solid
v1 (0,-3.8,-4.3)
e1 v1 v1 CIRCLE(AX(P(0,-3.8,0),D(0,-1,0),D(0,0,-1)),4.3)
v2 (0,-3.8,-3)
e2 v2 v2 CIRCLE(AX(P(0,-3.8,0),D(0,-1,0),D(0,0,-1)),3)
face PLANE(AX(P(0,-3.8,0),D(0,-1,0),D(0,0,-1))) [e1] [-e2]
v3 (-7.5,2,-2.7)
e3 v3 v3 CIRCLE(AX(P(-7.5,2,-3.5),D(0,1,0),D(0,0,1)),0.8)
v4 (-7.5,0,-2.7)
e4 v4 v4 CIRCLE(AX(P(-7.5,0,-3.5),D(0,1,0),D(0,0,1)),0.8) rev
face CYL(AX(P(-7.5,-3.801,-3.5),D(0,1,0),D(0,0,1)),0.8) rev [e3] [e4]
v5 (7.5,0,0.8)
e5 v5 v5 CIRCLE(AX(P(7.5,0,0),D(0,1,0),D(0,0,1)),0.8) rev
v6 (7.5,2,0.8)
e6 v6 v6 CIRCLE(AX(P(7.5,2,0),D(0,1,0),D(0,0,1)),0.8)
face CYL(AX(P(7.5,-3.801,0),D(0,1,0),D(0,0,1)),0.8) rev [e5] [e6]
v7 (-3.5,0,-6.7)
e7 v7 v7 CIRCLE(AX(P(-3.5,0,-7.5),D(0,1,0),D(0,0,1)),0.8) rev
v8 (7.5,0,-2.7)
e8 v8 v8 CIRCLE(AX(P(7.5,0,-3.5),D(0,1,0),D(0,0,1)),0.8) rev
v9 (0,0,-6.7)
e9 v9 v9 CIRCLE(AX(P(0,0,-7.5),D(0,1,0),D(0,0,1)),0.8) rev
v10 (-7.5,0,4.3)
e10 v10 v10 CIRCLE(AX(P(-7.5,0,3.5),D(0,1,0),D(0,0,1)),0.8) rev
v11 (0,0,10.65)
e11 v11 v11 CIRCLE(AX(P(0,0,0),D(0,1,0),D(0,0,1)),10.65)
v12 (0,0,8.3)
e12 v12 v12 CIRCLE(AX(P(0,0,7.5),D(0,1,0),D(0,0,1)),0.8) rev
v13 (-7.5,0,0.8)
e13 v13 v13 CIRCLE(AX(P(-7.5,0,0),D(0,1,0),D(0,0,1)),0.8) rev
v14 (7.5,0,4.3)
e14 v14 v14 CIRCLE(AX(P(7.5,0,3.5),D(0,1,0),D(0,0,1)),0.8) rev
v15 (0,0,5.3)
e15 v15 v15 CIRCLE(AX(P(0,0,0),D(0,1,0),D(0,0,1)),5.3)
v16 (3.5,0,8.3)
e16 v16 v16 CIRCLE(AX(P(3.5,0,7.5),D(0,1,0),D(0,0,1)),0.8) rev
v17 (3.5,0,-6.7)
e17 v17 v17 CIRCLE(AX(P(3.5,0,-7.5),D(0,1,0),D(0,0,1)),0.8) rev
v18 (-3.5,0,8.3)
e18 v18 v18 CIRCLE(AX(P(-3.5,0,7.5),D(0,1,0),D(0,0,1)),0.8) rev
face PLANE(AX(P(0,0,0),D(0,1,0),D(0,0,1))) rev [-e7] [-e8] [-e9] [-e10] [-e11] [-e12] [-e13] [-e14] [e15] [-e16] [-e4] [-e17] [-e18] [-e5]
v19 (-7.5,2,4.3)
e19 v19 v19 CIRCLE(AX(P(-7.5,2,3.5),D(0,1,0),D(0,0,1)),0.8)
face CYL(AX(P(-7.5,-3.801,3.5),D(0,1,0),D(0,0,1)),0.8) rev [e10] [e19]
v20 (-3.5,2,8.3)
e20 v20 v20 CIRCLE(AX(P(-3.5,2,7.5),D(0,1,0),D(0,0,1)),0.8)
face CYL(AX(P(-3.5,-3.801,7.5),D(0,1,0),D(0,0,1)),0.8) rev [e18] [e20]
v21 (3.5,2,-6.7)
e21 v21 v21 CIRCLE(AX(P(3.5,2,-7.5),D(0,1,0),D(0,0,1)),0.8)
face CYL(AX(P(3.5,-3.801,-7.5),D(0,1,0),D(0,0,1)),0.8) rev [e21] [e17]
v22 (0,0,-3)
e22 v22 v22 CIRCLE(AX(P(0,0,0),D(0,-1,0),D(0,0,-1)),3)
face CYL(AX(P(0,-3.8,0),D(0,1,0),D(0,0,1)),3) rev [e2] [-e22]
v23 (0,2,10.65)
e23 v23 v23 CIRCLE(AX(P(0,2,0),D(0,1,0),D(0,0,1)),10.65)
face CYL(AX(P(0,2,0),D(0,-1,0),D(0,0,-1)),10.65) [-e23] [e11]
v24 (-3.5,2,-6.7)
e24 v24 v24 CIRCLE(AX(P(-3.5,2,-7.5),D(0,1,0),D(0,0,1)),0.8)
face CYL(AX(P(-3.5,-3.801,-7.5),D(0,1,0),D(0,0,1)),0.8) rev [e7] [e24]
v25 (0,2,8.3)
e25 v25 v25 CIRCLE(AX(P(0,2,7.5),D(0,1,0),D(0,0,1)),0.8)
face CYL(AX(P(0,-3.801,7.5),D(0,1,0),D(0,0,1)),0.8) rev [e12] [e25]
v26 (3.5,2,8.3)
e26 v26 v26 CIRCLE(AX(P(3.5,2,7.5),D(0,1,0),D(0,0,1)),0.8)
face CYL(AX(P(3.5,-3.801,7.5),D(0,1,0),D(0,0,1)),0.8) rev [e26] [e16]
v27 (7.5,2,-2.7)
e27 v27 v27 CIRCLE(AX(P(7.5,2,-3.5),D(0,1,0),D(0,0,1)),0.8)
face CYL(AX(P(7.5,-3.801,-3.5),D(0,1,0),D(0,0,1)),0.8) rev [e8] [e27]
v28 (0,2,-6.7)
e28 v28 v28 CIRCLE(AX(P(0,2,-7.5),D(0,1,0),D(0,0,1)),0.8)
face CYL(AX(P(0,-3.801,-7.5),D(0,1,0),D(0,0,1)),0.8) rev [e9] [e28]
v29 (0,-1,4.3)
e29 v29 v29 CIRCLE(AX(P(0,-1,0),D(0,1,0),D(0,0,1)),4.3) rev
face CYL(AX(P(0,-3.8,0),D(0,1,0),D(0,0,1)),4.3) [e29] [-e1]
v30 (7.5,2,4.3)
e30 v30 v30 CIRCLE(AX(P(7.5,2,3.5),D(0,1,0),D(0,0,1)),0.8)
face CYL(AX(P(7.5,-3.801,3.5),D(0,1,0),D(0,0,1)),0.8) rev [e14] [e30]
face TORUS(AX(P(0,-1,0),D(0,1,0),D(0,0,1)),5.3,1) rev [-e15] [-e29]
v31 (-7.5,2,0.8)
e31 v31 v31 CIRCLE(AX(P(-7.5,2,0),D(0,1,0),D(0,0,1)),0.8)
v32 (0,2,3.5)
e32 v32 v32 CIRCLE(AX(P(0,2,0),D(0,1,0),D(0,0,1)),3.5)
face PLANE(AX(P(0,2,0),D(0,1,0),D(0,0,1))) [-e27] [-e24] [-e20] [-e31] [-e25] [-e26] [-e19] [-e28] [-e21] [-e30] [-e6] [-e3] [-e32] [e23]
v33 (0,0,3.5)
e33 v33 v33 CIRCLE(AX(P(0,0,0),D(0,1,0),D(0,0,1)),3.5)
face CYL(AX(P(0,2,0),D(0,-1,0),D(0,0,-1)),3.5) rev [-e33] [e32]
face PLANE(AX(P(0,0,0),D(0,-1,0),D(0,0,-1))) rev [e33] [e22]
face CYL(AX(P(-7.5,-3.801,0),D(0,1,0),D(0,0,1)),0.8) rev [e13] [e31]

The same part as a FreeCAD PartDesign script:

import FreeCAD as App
import Part
import Sketcher


def edges_at(feature, points):
    """Names of the edges that pass closest to the given points."""
    edges = feature.Shape.Edges
    near = lambda p: min(range(len(edges)), key=lambda i: edges[i].distToShape(Part.Vertex(*p))[0])
    return sorted({f"Edge{near(p) + 1}" for p in points})

doc = App.newDocument("Part")
body = doc.addObject("PartDesign::Body", "Body")

sketch1 = body.newObject("Sketcher::SketchObject", "Sketch")
sketch1.AttachmentSupport = (doc.getObject("XZ_Plane"), [""])
sketch1.MapMode = "FlatFace"
sketch1.addGeometry([
    Part.Circle(App.Vector(0, 0, 0), App.Vector(0, 0, 1), 10.7),
    Part.Circle(App.Vector(0, 0, 0), App.Vector(0, 0, 1), 3.5),
], False)
sketch1.addConstraint([
    Sketcher.Constraint("Coincident", 0, 3, -1, 1),
    Sketcher.Constraint("Coincident", 1, 3, -1, 1),
    Sketcher.Constraint("Diameter", 1, 7.0),
    Sketcher.Constraint("Diameter", 0, 21.3),
])
pad1 = body.newObject("PartDesign::Pad", "Pad")
pad1.Profile = sketch1
pad1.Length = 2
pad1.Reversed = True

sketch2 = body.newObject("Sketcher::SketchObject", "Sketch001")
sketch2.AttachmentSupport = (doc.getObject("XZ_Plane"), [""])
sketch2.MapMode = "FlatFace"
sketch2.addGeometry([
    Part.Circle(App.Vector(0, 0, 0), App.Vector(0, 0, 1), 4.3),
    Part.Circle(App.Vector(0, 0, 0), App.Vector(0, 0, 1), 3),
], False)
sketch2.addConstraint([
    Sketcher.Constraint("Coincident", 0, 3, -1, 1),
    Sketcher.Constraint("Coincident", 1, 3, -1, 1),
    Sketcher.Constraint("Diameter", 1, 6.0),
    Sketcher.Constraint("Diameter", 0, 8.6),
])
pad2 = body.newObject("PartDesign::Pad", "Pad001")
pad2.Profile = sketch2
pad2.Length = 3.8
doc.recompute()

fillet = body.newObject("PartDesign::Fillet", "Fillet")
fillet.Base = (pad2, edges_at(pad2, [(-4.3, 0, 0)]))
fillet.Radius = 1

sketch3 = body.newObject("Sketcher::SketchObject", "Sketch002")
sketch3.AttachmentSupport = (doc.getObject("XZ_Plane"), [""])
sketch3.MapMode = "FlatFace"
sketch3.AttachmentOffset = App.Placement(App.Vector(0, 0, -2), App.Rotation())
sketch3.addGeometry(Part.Circle(App.Vector(-3.5, -7.5, 0), App.Vector(0, 0, 1), 0.8), False)
sketch3.addConstraint([
    Sketcher.Constraint("Diameter", 0, 1.6),
    Sketcher.Constraint("DistanceX", 0, 3, -1, 1, 3.5),
    Sketcher.Constraint("DistanceY", 0, 3, -1, 1, 7.5),
])
pocket1 = body.newObject("PartDesign::Pocket", "Pocket")
pocket1.Profile = sketch3
pocket1.Type = "UpToFirst"
pocket1.Reversed = True

sketch4 = body.newObject("Sketcher::SketchObject", "Sketch003")
sketch4.AttachmentSupport = (doc.getObject("XZ_Plane"), [""])
sketch4.MapMode = "FlatFace"
sketch4.AttachmentOffset = App.Placement(App.Vector(0, 0, -2), App.Rotation())
sketch4.addGeometry(Part.Circle(App.Vector(0, -7.5, 0), App.Vector(0, 0, 1), 0.8), False)
sketch4.addConstraint([
    Sketcher.Constraint("PointOnObject", 0, 3, -2),
    Sketcher.Constraint("Diameter", 0, 1.6),
    Sketcher.Constraint("DistanceY", 0, 3, -1, 1, 7.5),
])
pocket2 = body.newObject("PartDesign::Pocket", "Pocket001")
pocket2.Profile = sketch4
pocket2.Type = "UpToFirst"
pocket2.Reversed = True

sketch5 = body.newObject("Sketcher::SketchObject", "Sketch004")
sketch5.AttachmentSupport = (doc.getObject("XZ_Plane"), [""])
sketch5.MapMode = "FlatFace"
sketch5.AttachmentOffset = App.Placement(App.Vector(0, 0, -2), App.Rotation())
sketch5.addGeometry(Part.Circle(App.Vector(3.5, -7.5, 0), App.Vector(0, 0, 1), 0.8), False)
sketch5.addConstraint([
    Sketcher.Constraint("Diameter", 0, 1.6),
    Sketcher.Constraint("DistanceX", -1, 1, 0, 3, 3.5),
    Sketcher.Constraint("DistanceY", 0, 3, -1, 1, 7.5),
])
pocket3 = body.newObject("PartDesign::Pocket", "Pocket002")
pocket3.Profile = sketch5
pocket3.Type = "UpToFirst"
pocket3.Reversed = True

sketch6 = body.newObject("Sketcher::SketchObject", "Sketch005")
sketch6.AttachmentSupport = (doc.getObject("XZ_Plane"), [""])
sketch6.MapMode = "FlatFace"
sketch6.AttachmentOffset = App.Placement(App.Vector(0, 0, -2), App.Rotation())
sketch6.addGeometry(Part.Circle(App.Vector(7.5, -3.5, 0), App.Vector(0, 0, 1), 0.8), False)
sketch6.addConstraint([
    Sketcher.Constraint("Diameter", 0, 1.6),
    Sketcher.Constraint("DistanceX", -1, 1, 0, 3, 7.5),
    Sketcher.Constraint("DistanceY", 0, 3, -1, 1, 3.5),
])
pocket4 = body.newObject("PartDesign::Pocket", "Pocket003")
pocket4.Profile = sketch6
pocket4.Type = "UpToFirst"
pocket4.Reversed = True

sketch7 = body.newObject("Sketcher::SketchObject", "Sketch006")
sketch7.AttachmentSupport = (doc.getObject("XZ_Plane"), [""])
sketch7.MapMode = "FlatFace"
sketch7.AttachmentOffset = App.Placement(App.Vector(0, 0, -2), App.Rotation())
sketch7.addGeometry(Part.Circle(App.Vector(7.5, 0, 0), App.Vector(0, 0, 1), 0.8), False)
sketch7.addConstraint([
    Sketcher.Constraint("PointOnObject", 0, 3, -1),
    Sketcher.Constraint("Diameter", 0, 1.6),
    Sketcher.Constraint("DistanceX", -1, 1, 0, 3, 7.5),
])
pocket5 = body.newObject("PartDesign::Pocket", "Pocket004")
pocket5.Profile = sketch7
pocket5.Type = "UpToFirst"
pocket5.Reversed = True

sketch8 = body.newObject("Sketcher::SketchObject", "Sketch007")
sketch8.AttachmentSupport = (doc.getObject("XZ_Plane"), [""])
sketch8.MapMode = "FlatFace"
sketch8.AttachmentOffset = App.Placement(App.Vector(0, 0, -2), App.Rotation())
sketch8.addGeometry(Part.Circle(App.Vector(7.5, 3.5, 0), App.Vector(0, 0, 1), 0.8), False)
sketch8.addConstraint([
    Sketcher.Constraint("Diameter", 0, 1.6),
    Sketcher.Constraint("DistanceX", -1, 1, 0, 3, 7.5),
    Sketcher.Constraint("DistanceY", -1, 1, 0, 3, 3.5),
])
pocket6 = body.newObject("PartDesign::Pocket", "Pocket005")
pocket6.Profile = sketch8
pocket6.Type = "UpToFirst"
pocket6.Reversed = True

sketch9 = body.newObject("Sketcher::SketchObject", "Sketch008")
sketch9.AttachmentSupport = (doc.getObject("XZ_Plane"), [""])
sketch9.MapMode = "FlatFace"
sketch9.AttachmentOffset = App.Placement(App.Vector(0, 0, -2), App.Rotation())
sketch9.addGeometry(Part.Circle(App.Vector(3.5, 7.5, 0), App.Vector(0, 0, 1), 0.8), False)
sketch9.addConstraint([
    Sketcher.Constraint("Diameter", 0, 1.6),
    Sketcher.Constraint("DistanceX", -1, 1, 0, 3, 3.5),
    Sketcher.Constraint("DistanceY", -1, 1, 0, 3, 7.5),
])
pocket7 = body.newObject("PartDesign::Pocket", "Pocket006")
pocket7.Profile = sketch9
pocket7.Type = "UpToFirst"
pocket7.Reversed = True

sketch10 = body.newObject("Sketcher::SketchObject", "Sketch009")
sketch10.AttachmentSupport = (doc.getObject("XZ_Plane"), [""])
sketch10.MapMode = "FlatFace"
sketch10.AttachmentOffset = App.Placement(App.Vector(0, 0, -2), App.Rotation())
sketch10.addGeometry(Part.Circle(App.Vector(0, 7.5, 0), App.Vector(0, 0, 1), 0.8), False)
sketch10.addConstraint([
    Sketcher.Constraint("PointOnObject", 0, 3, -2),
    Sketcher.Constraint("Diameter", 0, 1.6),
    Sketcher.Constraint("DistanceY", -1, 1, 0, 3, 7.5),
])
pocket8 = body.newObject("PartDesign::Pocket", "Pocket007")
pocket8.Profile = sketch10
pocket8.Type = "UpToFirst"
pocket8.Reversed = True

sketch11 = body.newObject("Sketcher::SketchObject", "Sketch010")
sketch11.AttachmentSupport = (doc.getObject("XZ_Plane"), [""])
sketch11.MapMode = "FlatFace"
sketch11.AttachmentOffset = App.Placement(App.Vector(0, 0, -2), App.Rotation())
sketch11.addGeometry(Part.Circle(App.Vector(-3.5, 7.5, 0), App.Vector(0, 0, 1), 0.8), False)
sketch11.addConstraint([
    Sketcher.Constraint("Diameter", 0, 1.6),
    Sketcher.Constraint("DistanceX", 0, 3, -1, 1, 3.5),
    Sketcher.Constraint("DistanceY", -1, 1, 0, 3, 7.5),
])
pocket9 = body.newObject("PartDesign::Pocket", "Pocket008")
pocket9.Profile = sketch11
pocket9.Type = "UpToFirst"
pocket9.Reversed = True

sketch12 = body.newObject("Sketcher::SketchObject", "Sketch011")
sketch12.AttachmentSupport = (doc.getObject("XZ_Plane"), [""])
sketch12.MapMode = "FlatFace"
sketch12.AttachmentOffset = App.Placement(App.Vector(0, 0, -2), App.Rotation())
sketch12.addGeometry(Part.Circle(App.Vector(-7.5, 3.5, 0), App.Vector(0, 0, 1), 0.8), False)
sketch12.addConstraint([
    Sketcher.Constraint("Diameter", 0, 1.6),
    Sketcher.Constraint("DistanceX", 0, 3, -1, 1, 7.5),
    Sketcher.Constraint("DistanceY", -1, 1, 0, 3, 3.5),
])
pocket10 = body.newObject("PartDesign::Pocket", "Pocket009")
pocket10.Profile = sketch12
pocket10.Type = "UpToFirst"
pocket10.Reversed = True

sketch13 = body.newObject("Sketcher::SketchObject", "Sketch012")
sketch13.AttachmentSupport = (doc.getObject("XZ_Plane"), [""])
sketch13.MapMode = "FlatFace"
sketch13.AttachmentOffset = App.Placement(App.Vector(0, 0, -2), App.Rotation())
sketch13.addGeometry(Part.Circle(App.Vector(-7.5, 0, 0), App.Vector(0, 0, 1), 0.8), False)
sketch13.addConstraint([
    Sketcher.Constraint("PointOnObject", 0, 3, -1),
    Sketcher.Constraint("Diameter", 0, 1.6),
    Sketcher.Constraint("DistanceX", 0, 3, -1, 1, 7.5),
])
pocket11 = body.newObject("PartDesign::Pocket", "Pocket010")
pocket11.Profile = sketch13
pocket11.Type = "UpToFirst"
pocket11.Reversed = True

sketch14 = body.newObject("Sketcher::SketchObject", "Sketch013")
sketch14.AttachmentSupport = (doc.getObject("XZ_Plane"), [""])
sketch14.MapMode = "FlatFace"
sketch14.AttachmentOffset = App.Placement(App.Vector(0, 0, -2), App.Rotation())
sketch14.addGeometry(Part.Circle(App.Vector(-7.5, -3.5, 0), App.Vector(0, 0, 1), 0.8), False)
sketch14.addConstraint([
    Sketcher.Constraint("Diameter", 0, 1.6),
    Sketcher.Constraint("DistanceX", 0, 3, -1, 1, 7.5),
    Sketcher.Constraint("DistanceY", 0, 3, -1, 1, 3.5),
])
pocket12 = body.newObject("PartDesign::Pocket", "Pocket011")
pocket12.Profile = sketch14
pocket12.Type = "UpToFirst"
pocket12.Reversed = True

doc.recompute()
